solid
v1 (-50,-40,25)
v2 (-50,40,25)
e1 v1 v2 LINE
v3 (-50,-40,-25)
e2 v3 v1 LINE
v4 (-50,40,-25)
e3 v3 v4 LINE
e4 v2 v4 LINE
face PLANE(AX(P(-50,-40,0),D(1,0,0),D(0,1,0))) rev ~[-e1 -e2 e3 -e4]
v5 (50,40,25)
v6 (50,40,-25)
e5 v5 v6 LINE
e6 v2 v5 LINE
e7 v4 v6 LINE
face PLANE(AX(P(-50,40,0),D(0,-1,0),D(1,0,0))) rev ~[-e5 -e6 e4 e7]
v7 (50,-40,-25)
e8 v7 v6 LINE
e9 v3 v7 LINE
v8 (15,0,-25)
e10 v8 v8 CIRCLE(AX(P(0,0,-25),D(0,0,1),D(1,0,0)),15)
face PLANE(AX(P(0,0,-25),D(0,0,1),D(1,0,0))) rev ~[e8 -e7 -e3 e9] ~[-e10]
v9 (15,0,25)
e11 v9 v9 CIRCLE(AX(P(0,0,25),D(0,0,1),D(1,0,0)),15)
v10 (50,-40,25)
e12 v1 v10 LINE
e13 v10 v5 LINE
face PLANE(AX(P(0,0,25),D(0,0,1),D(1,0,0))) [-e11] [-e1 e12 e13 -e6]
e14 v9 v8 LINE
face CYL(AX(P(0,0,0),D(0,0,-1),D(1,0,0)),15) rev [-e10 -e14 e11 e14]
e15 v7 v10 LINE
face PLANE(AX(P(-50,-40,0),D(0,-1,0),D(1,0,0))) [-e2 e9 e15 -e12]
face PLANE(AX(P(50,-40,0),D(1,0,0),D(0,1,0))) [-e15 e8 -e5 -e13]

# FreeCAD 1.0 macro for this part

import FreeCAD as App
import Part
import Sketcher
Q = App.Units.Quantity


def add_polygon(sketch, points):
    """Adds a closed chain of lines whose ends are joined by coincident constraints."""
    first, n = sketch.GeometryCount, len(points)
    for a, b in zip(points, points[1:] + points[:1]):
        sketch.addGeometry(Part.LineSegment(App.Vector(*a, 0), App.Vector(*b, 0)), False)
    for i in range(n):
        sketch.addConstraint(Sketcher.Constraint("Coincident", first + i, 2, first + (i + 1) % n, 1))

doc = App.newDocument("Part")
body = doc.addObject("PartDesign::Body", "Body")

sketch1 = body.newObject("Sketcher::SketchObject", "Sketch")
sketch1.AttachmentSupport = (doc.getObject("XY_Plane"), [""])
sketch1.MapMode = "FlatFace"
add_polygon(sketch1, [(-50, 40), (-50, -40), (50, -40), (50, 40)])
sketch1.addGeometry(Part.Circle(App.Vector(0, 0, 0), App.Vector(0, 0, 1), 15), False)
sketch1.addConstraint([
    Sketcher.Constraint("Vertical", 0),
    Sketcher.Constraint("Horizontal", 1),
    Sketcher.Constraint("Vertical", 2),
    Sketcher.Constraint("Horizontal", 3),
    Sketcher.Constraint("Coincident", 4, 3, -1, 1),
    Sketcher.Constraint("Symmetric", 0, 2, 2, 2, -1, 1),
    Sketcher.Constraint("Diameter", 4, Q("30 mm")),
    Sketcher.Constraint("DistanceX", 1, 1, 1, 2, Q("100 mm")),
    Sketcher.Constraint("DistanceY", 0, 2, 0, 1, Q("80 mm")),
])
pad1 = body.newObject("PartDesign::Pad", "Pad")
pad1.Profile = sketch1
pad1.Length = 50
pad1.Midplane = True

sketch2 = body.newObject("Sketcher::SketchObject", "Sketch001")
sketch2.AttachmentSupport = (doc.getObject("XY_Plane"), [""])
sketch2.MapMode = "FlatFace"
add_polygon(sketch2, [(-50, 40), (-50, -40), (50, -40), (50, 40)])
sketch2.addGeometry(Part.Circle(App.Vector(0, 0, 0), App.Vector(0, 0, 1), 15), False)
sketch2.addConstraint([
    Sketcher.Constraint("Vertical", 0),
    Sketcher.Constraint("Horizontal", 1),
    Sketcher.Constraint("Vertical", 2),
    Sketcher.Constraint("Horizontal", 3),
    Sketcher.Constraint("Coincident", 4, 3, -1, 1),
    Sketcher.Constraint("Symmetric", 0, 2, 2, 2, -1, 1),
    Sketcher.Constraint("Diameter", 4, Q("30 mm")),
    Sketcher.Constraint("DistanceX", 1, 1, 1, 2, Q("100 mm")),
    Sketcher.Constraint("DistanceY", 0, 2, 0, 1, Q("80 mm")),
])
pad2 = body.newObject("PartDesign::Pad", "Pad001")
pad2.Profile = sketch2
pad2.Length = 25

doc.recompute()
